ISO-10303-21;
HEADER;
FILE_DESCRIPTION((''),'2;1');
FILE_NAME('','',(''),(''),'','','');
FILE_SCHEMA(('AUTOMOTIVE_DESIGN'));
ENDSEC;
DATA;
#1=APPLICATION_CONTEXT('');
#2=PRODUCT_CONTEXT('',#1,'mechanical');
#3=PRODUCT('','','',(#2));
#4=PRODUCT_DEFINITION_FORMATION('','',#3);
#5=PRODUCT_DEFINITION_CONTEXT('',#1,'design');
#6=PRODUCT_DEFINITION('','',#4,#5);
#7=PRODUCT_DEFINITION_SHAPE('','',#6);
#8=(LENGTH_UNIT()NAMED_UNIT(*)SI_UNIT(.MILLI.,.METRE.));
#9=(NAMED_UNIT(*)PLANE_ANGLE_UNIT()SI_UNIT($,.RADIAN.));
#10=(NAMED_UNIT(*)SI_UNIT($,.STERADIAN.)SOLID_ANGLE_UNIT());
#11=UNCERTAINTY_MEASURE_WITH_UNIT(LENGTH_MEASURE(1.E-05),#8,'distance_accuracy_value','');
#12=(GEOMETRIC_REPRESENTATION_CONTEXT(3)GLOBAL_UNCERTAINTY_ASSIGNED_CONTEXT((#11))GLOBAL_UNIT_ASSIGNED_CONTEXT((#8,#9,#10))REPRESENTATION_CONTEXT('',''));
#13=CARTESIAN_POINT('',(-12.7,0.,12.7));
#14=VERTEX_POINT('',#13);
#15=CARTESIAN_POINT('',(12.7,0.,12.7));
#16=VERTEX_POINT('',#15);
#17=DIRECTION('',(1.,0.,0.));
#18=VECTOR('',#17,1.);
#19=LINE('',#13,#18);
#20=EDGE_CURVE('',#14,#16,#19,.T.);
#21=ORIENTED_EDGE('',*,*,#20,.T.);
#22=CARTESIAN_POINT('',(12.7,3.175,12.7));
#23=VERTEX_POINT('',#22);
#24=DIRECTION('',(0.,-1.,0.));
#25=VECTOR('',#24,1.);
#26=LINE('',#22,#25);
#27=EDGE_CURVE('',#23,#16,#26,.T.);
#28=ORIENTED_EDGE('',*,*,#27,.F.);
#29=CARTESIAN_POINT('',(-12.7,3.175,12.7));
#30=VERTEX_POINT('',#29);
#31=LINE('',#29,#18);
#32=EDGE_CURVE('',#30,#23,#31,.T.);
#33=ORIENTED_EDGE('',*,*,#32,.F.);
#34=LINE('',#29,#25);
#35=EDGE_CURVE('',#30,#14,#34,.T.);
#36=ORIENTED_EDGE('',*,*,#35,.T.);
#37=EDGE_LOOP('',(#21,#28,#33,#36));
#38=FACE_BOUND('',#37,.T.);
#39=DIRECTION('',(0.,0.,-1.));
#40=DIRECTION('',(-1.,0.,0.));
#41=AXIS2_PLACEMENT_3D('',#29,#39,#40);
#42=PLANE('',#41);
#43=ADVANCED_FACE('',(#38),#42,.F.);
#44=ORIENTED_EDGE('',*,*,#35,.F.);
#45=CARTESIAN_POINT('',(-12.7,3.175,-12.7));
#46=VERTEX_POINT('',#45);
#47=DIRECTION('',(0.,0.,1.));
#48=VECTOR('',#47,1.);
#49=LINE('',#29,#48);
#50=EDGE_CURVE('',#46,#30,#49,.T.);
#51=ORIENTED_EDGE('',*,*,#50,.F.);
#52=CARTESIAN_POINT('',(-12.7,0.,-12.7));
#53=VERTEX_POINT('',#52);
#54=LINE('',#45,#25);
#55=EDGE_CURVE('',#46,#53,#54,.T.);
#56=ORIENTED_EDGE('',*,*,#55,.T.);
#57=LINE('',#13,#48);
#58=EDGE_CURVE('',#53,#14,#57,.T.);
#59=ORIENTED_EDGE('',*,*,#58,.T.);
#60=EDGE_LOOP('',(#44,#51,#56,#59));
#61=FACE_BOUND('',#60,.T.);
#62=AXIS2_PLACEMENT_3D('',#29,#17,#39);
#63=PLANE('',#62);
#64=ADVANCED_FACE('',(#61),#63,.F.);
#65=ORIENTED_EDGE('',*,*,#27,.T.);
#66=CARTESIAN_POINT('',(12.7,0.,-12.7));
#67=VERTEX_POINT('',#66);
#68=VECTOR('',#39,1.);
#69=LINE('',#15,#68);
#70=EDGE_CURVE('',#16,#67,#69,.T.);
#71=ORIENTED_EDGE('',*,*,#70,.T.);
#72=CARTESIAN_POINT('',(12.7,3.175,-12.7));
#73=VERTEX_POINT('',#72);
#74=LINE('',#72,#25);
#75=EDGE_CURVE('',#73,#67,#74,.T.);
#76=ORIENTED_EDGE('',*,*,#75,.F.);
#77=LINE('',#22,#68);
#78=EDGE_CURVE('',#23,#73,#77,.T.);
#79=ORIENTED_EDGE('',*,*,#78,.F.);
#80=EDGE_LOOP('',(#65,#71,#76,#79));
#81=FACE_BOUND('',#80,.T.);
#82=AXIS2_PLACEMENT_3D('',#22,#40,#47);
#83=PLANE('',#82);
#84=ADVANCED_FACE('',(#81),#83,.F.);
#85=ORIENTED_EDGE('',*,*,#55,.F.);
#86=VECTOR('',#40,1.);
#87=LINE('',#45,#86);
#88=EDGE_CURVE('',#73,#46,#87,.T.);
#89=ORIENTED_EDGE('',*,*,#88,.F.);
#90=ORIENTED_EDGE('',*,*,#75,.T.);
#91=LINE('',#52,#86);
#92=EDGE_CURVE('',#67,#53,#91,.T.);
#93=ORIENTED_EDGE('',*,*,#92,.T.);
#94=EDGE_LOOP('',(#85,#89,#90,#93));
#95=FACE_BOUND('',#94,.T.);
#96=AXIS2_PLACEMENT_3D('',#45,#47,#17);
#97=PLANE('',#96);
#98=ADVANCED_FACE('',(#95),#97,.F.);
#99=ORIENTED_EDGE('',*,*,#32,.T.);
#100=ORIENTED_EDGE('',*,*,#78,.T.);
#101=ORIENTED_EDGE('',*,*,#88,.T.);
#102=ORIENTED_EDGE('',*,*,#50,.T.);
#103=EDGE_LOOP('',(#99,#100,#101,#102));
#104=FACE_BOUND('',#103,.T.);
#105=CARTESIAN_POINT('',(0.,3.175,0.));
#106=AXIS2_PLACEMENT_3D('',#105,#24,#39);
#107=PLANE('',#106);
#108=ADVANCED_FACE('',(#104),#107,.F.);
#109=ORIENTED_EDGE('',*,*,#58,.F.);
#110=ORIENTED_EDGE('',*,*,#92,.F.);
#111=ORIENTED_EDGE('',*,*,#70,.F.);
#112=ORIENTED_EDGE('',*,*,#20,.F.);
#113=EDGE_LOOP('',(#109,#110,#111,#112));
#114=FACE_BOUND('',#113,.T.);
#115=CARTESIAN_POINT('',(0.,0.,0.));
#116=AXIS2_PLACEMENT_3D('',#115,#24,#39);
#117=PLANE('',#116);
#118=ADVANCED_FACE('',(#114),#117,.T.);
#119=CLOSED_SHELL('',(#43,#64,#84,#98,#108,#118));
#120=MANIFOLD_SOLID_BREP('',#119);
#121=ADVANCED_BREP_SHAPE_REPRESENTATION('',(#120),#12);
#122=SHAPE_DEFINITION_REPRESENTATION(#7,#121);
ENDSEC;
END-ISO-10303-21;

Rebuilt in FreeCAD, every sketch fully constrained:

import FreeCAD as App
import Part
import Sketcher

V = App.Vector
Q = App.Units.Quantity

doc = App.newDocument("Part")
body = doc.addObject("PartDesign::Body", "Body")

sketch1 = body.newObject("Sketcher::SketchObject", "Sketch")
sketch1.AttachmentSupport = (doc.getObject("XZ_Plane"), [""])
sketch1.MapMode = "FlatFace"
sketch1.addGeometry(Part.LineSegment(V(-13, -13, 0), V(-13, 13, 0)), False)
sketch1.addGeometry(Part.LineSegment(V(-13, 13, 0), V(13, 13, 0)), False)
sketch1.addGeometry(Part.LineSegment(V(13, 13, 0), V(13, -13, 0)), False)
sketch1.addGeometry(Part.LineSegment(V(13, -13, 0), V(-13, -13, 0)), False)
sketch1.addConstraint(Sketcher.Constraint("Coincident", 0, 2, 1, 1))
sketch1.addConstraint(Sketcher.Constraint("Coincident", 1, 2, 2, 1))
sketch1.addConstraint(Sketcher.Constraint("Coincident", 2, 2, 3, 1))
sketch1.addConstraint(Sketcher.Constraint("Coincident", 3, 2, 0, 1))
sketch1.addConstraint(Sketcher.Constraint("Vertical", 0))
sketch1.addConstraint(Sketcher.Constraint("Horizontal", 1))
sketch1.addConstraint(Sketcher.Constraint("Vertical", 2))
sketch1.addConstraint(Sketcher.Constraint("Horizontal", 3))
sketch1.addConstraint(Sketcher.Constraint("Symmetric", 0, 2, 2, 2, -1, 1))
sketch1.addConstraint(Sketcher.Constraint("Equal", 3, 0))
sketch1.addConstraint(Sketcher.Constraint("DistanceX", 1, 1, 1, 2, Q("1 in")))
pad1 = body.newObject("PartDesign::Pad", "Pad")
pad1.Profile = sketch1
pad1.Length = Q("0.125 in")
pad1.Reversed = True

doc.recompute()
